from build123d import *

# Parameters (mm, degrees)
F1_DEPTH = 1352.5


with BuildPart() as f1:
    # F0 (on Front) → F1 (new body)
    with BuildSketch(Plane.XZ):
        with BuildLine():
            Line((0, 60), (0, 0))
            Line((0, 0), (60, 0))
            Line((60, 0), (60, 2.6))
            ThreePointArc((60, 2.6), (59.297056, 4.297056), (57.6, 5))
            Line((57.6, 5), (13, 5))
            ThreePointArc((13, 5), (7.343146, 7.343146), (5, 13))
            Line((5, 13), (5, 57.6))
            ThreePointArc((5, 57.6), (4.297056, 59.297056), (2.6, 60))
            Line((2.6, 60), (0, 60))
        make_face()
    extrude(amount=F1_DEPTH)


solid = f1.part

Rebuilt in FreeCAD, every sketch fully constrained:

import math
import FreeCAD as App
import Part
import Sketcher

V = App.Vector

doc = App.newDocument("Part")
body = doc.addObject("PartDesign::Body", "Body")

# Sketch on XZ plane
sketch1 = doc.addObject("Sketcher::SketchObject", "Sketch")
body.addObject(sketch1)
sketch1.AttachmentSupport = (doc.XZ_Plane, [""])
sketch1.MapMode = "FlatFace"
sketch1.addGeometry([
    Part.LineSegment(V(0, 60, 0), V(0, 0, 0)),  # 0
    Part.LineSegment(V(0, 0, 0), V(60, 0, 0)),  # 1
    Part.LineSegment(V(60, 0, 0), V(60, 2.6, 0)),  # 2
    Part.ArcOfCircle(Part.Circle(V(57.599999, 2.599999, 0), V(0, 0, 1), 2.400001), math.radians(0.000022), math.radians(89.999978)),  # 3
    Part.LineSegment(V(57.6, 5, 0), V(13, 5, 0)),  # 4
    Part.ArcOfCircle(Part.Circle(V(13.000001, 13.000001, 0), V(0, 0, 1), 8.000001), math.radians(-179.999994), math.radians(-90.000006)),  # 5
    Part.LineSegment(V(5, 13, 0), V(5, 57.6, 0)),  # 6
    Part.ArcOfCircle(Part.Circle(V(2.599999, 57.599999, 0), V(0, 0, 1), 2.400001), math.radians(0.000022), math.radians(89.999978)),  # 7
    Part.LineSegment(V(2.6, 60, 0), V(0, 60, 0)),  # 8
], False)
sketch1.addConstraint([
    Sketcher.Constraint("Coincident", 0, 2, 1, 1),
    Sketcher.Constraint("Coincident", 1, 2, 2, 1),
    Sketcher.Constraint("Tangent", 2, 2, 3, 1),
    Sketcher.Constraint("Tangent", 3, 2, 4, 1),
    Sketcher.Constraint("Tangent", 4, 2, 5, 2),
    Sketcher.Constraint("Tangent", 5, 1, 6, 1),
    Sketcher.Constraint("Tangent", 6, 2, 7, 1),
    Sketcher.Constraint("Tangent", 7, 2, 8, 1),
    Sketcher.Constraint("Coincident", 8, 2, 0, 1),
    Sketcher.Constraint("Vertical", 0),
    Sketcher.Constraint("Horizontal", 1),
    Sketcher.Constraint("Vertical", 2),
    Sketcher.Constraint("Horizontal", 4),
    Sketcher.Constraint("Vertical", 6),
    Sketcher.Constraint("Horizontal", 8),
    Sketcher.Constraint("Coincident", 0, 2, -1, 1),
    Sketcher.Constraint("Equal", 3, 7),
    Sketcher.Constraint("Equal", 1, 0),
    Sketcher.Constraint("Equal", 8, 2),
    Sketcher.Constraint("Radius", 5, 8.000001),
    Sketcher.Constraint("Radius", 3, 2.400001),
    Sketcher.Constraint("DistanceX", 1, 1, 1, 2, 60.0),
    Sketcher.Constraint("DistanceX", 4, 2, 4, 1, 44.6),
])
pad1 = doc.addObject("PartDesign::Pad", "Pad")
body.addObject(pad1)
pad1.Profile = sketch1
pad1.Length = 1352.5

doc.recompute()
